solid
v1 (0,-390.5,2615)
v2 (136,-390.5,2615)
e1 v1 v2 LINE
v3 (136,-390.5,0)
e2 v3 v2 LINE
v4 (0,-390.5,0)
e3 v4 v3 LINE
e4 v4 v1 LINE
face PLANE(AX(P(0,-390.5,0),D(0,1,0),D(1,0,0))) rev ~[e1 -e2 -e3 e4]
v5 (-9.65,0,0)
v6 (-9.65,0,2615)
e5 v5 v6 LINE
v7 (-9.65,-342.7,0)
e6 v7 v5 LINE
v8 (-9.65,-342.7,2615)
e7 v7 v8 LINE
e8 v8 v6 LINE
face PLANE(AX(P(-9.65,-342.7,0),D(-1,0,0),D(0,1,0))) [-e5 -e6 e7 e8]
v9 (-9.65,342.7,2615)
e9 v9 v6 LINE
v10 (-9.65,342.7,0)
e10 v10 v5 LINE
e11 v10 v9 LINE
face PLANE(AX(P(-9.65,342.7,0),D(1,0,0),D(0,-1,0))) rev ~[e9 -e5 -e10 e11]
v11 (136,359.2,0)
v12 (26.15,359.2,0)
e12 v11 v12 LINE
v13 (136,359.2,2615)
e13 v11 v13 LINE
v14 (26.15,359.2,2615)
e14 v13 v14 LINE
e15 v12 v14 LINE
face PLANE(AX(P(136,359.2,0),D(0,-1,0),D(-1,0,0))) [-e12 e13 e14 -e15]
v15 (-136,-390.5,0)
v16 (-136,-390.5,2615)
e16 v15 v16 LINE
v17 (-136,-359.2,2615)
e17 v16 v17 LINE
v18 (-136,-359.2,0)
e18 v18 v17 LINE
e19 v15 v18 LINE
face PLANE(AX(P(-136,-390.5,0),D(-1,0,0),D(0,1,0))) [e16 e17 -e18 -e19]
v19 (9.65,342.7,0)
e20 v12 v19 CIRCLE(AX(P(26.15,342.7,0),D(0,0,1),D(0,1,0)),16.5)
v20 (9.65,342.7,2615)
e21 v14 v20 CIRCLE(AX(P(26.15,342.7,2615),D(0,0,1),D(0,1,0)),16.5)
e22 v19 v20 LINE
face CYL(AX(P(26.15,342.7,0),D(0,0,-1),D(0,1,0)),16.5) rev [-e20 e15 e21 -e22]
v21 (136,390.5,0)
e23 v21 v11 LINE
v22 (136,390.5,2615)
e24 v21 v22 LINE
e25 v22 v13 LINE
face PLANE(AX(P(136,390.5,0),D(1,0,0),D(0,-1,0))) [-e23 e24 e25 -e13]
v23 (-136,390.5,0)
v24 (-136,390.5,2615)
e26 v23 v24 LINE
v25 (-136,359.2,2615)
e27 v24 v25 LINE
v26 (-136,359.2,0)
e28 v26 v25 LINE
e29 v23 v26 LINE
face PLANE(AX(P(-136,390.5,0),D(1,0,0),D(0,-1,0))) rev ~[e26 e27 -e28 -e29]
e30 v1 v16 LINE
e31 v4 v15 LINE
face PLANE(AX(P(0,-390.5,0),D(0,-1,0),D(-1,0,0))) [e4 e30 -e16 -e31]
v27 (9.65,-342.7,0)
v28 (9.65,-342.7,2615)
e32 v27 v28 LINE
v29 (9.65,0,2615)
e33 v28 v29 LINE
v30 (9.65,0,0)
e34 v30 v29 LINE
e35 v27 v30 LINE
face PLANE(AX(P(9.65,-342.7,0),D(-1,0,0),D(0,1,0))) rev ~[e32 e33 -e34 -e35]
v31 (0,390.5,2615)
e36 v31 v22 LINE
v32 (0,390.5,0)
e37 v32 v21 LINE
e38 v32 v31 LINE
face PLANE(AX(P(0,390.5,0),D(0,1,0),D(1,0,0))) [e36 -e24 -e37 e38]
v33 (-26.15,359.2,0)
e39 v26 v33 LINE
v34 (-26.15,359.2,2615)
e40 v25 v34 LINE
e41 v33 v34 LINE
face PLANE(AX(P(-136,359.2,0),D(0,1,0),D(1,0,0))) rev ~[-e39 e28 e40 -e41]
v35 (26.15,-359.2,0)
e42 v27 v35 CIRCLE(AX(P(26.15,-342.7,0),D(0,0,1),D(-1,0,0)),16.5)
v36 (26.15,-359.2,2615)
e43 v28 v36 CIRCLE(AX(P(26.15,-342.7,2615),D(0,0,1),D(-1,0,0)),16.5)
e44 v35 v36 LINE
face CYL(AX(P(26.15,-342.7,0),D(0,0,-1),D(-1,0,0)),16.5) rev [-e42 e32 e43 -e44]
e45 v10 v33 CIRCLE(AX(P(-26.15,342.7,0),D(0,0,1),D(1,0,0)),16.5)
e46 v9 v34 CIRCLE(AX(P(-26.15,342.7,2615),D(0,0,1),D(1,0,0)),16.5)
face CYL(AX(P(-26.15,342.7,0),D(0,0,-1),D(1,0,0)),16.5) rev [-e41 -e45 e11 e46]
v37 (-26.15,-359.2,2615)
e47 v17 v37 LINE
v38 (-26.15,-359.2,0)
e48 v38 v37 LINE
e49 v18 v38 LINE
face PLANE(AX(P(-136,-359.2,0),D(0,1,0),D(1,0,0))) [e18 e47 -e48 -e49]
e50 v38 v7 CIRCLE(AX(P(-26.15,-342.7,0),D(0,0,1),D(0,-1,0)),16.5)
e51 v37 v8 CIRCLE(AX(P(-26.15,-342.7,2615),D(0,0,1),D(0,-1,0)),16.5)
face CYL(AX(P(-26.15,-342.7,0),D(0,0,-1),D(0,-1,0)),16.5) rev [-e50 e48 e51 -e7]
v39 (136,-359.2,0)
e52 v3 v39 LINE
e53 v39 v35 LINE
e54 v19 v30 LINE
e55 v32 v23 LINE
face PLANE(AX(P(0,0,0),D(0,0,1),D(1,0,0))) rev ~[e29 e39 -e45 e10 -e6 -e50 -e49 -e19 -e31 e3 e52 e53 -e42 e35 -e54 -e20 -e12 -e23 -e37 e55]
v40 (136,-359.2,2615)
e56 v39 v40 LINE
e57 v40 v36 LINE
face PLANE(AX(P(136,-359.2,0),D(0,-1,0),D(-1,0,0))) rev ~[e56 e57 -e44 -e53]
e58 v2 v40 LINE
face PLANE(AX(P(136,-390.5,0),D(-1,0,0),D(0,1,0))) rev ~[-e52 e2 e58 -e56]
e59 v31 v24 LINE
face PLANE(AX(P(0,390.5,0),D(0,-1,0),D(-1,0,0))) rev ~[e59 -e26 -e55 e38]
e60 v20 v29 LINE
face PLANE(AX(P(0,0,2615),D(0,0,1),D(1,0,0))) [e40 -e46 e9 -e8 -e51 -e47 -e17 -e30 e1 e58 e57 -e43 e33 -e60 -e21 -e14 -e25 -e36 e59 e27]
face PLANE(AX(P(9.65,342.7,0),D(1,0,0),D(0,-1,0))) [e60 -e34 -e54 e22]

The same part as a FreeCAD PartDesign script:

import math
import FreeCAD as App
import Part
import Sketcher
from FreeCAD import Vector
Q = App.Units.Quantity

doc = App.newDocument("Part")
params = doc.addObject("Spreadsheet::Sheet", "Params")
for row, (alias, value) in enumerate([
    ("sketch1_radius", "16.5 mm"),
    ("sketch1_height", "31.3 mm"),
    ("pad1_length", "2615 mm"),
], start=1):
    params.set(f"A{row}", alias)
    params.set(f"B{row}", "=" + value)
    params.setAlias(f"B{row}", alias)

body = doc.addObject("PartDesign::Body", "Body")

sketch1 = doc.addObject("Sketcher::SketchObject", "Sketch")
body.addObject(sketch1)
sketch1.AttachmentSupport = (doc.XY_Plane, [""])
sketch1.MapMode = "FlatFace"
sketch1.addGeometry(Part.LineSegment(Vector(-136, -359, 0), Vector(-136, -390, 0)), False)
sketch1.addGeometry(Part.LineSegment(Vector(-136, -390, 0), Vector(136, -390, 0)), False)
sketch1.addGeometry(Part.LineSegment(Vector(136, -390, 0), Vector(136, -359, 0)), False)
sketch1.addGeometry(Part.LineSegment(Vector(136, -359, 0), Vector(26, -359, 0)), False)
sketch1.addGeometry(Part.ArcOfCircle(Part.Circle(Vector(26, -343, 0), Vector(0, 0, 1), 16), math.radians(180), math.radians(270)), False)
sketch1.addGeometry(Part.LineSegment(Vector(10, -343, 0), Vector(10, 343, 0)), False)
sketch1.addGeometry(Part.ArcOfCircle(Part.Circle(Vector(26, 343, 0), Vector(0, 0, 1), 16), math.radians(90), math.radians(180)), False)
sketch1.addGeometry(Part.LineSegment(Vector(26, 359, 0), Vector(136, 359, 0)), False)
sketch1.addGeometry(Part.LineSegment(Vector(136, 359, 0), Vector(136, 390, 0)), False)
sketch1.addGeometry(Part.LineSegment(Vector(136, 390, 0), Vector(-136, 390, 0)), False)
sketch1.addGeometry(Part.LineSegment(Vector(-136, 390, 0), Vector(-136, 359, 0)), False)
sketch1.addGeometry(Part.LineSegment(Vector(-136, 359, 0), Vector(-26, 359, 0)), False)
sketch1.addGeometry(Part.ArcOfCircle(Part.Circle(Vector(-26, 343, 0), Vector(0, 0, 1), 16), math.radians(0), math.radians(90)), False)
sketch1.addGeometry(Part.LineSegment(Vector(-10, 343, 0), Vector(-10, -343, 0)), False)
sketch1.addGeometry(Part.ArcOfCircle(Part.Circle(Vector(-26, -343, 0), Vector(0, 0, 1), 16), math.radians(-90), math.radians(0)), False)
sketch1.addGeometry(Part.LineSegment(Vector(-26, -359, 0), Vector(-136, -359, 0)), False)
sketch1.addConstraint(Sketcher.Constraint("Coincident", 0, 2, 1, 1))
sketch1.addConstraint(Sketcher.Constraint("Coincident", 1, 2, 2, 1))
sketch1.addConstraint(Sketcher.Constraint("Coincident", 2, 2, 3, 1))
sketch1.addConstraint(Sketcher.Constraint("Tangent", 3, 2, 4, 2))
sketch1.addConstraint(Sketcher.Constraint("Tangent", 4, 1, 5, 1))
sketch1.addConstraint(Sketcher.Constraint("Tangent", 5, 2, 6, 2))
sketch1.addConstraint(Sketcher.Constraint("Tangent", 6, 1, 7, 1))
sketch1.addConstraint(Sketcher.Constraint("Coincident", 7, 2, 8, 1))
sketch1.addConstraint(Sketcher.Constraint("Coincident", 8, 2, 9, 1))
sketch1.addConstraint(Sketcher.Constraint("Coincident", 9, 2, 10, 1))
sketch1.addConstraint(Sketcher.Constraint("Coincident", 10, 2, 11, 1))
sketch1.addConstraint(Sketcher.Constraint("Tangent", 11, 2, 12, 2))
sketch1.addConstraint(Sketcher.Constraint("Tangent", 12, 1, 13, 1))
sketch1.addConstraint(Sketcher.Constraint("Tangent", 13, 2, 14, 2))
sketch1.addConstraint(Sketcher.Constraint("Tangent", 14, 1, 15, 1))
sketch1.addConstraint(Sketcher.Constraint("Coincident", 15, 2, 0, 1))
sketch1.addConstraint(Sketcher.Constraint("Vertical", 0))
sketch1.addConstraint(Sketcher.Constraint("Horizontal", 1))
sketch1.addConstraint(Sketcher.Constraint("Vertical", 2))
sketch1.addConstraint(Sketcher.Constraint("Horizontal", 3))
sketch1.addConstraint(Sketcher.Constraint("Vertical", 5))
sketch1.addConstraint(Sketcher.Constraint("Horizontal", 7))
sketch1.addConstraint(Sketcher.Constraint("Vertical", 8))
sketch1.addConstraint(Sketcher.Constraint("Horizontal", 9))
sketch1.addConstraint(Sketcher.Constraint("Vertical", 10))
sketch1.addConstraint(Sketcher.Constraint("Horizontal", 11))
sketch1.addConstraint(Sketcher.Constraint("Vertical", 13))
sketch1.addConstraint(Sketcher.Constraint("Horizontal", 15))
sketch1.addConstraint(Sketcher.Constraint("Equal", 4, 6))
sketch1.addConstraint(Sketcher.Constraint("Equal", 6, 12))
sketch1.addConstraint(Sketcher.Constraint("Equal", 12, 14))
sketch1.addConstraint(Sketcher.Constraint("Symmetric", 4, 3, 12, 3, -1, 1))
sketch1.addConstraint(Sketcher.Constraint("Symmetric", 0, 2, 8, 2, -1, 1))
sketch1.addConstraint(Sketcher.Constraint("Symmetric", 7, 2, 10, 2, -2))
sketch1.addConstraint(Sketcher.Constraint("Symmetric", 2, 2, 15, 2, -2))
sketch1.addConstraint(Sketcher.Constraint("Radius", 4, Q("16.5 mm")))
sketch1.addConstraint(Sketcher.Constraint("DistanceY", 0, 2, 0, 1, Q("31.3 mm")))
sketch1.addConstraint(Sketcher.Constraint("DistanceX", 0, 2, -1, 1, Q("136 mm")))
sketch1.addConstraint(Sketcher.Constraint("DistanceY", 0, 2, -1, 1, Q("390.5 mm")))
sketch1.addConstraint(Sketcher.Constraint("DistanceX", -1, 1, 4, 1, Q("9.65 mm")))
sketch1.setExpression("Constraints[35]", "Params.sketch1_radius")
sketch1.setExpression("Constraints[36]", "Params.sketch1_height")
pad1 = doc.addObject("PartDesign::Pad", "Pad")
body.addObject(pad1)
pad1.Profile = sketch1
pad1.setExpression("Length", "Params.pad1_length")

doc.recompute()
